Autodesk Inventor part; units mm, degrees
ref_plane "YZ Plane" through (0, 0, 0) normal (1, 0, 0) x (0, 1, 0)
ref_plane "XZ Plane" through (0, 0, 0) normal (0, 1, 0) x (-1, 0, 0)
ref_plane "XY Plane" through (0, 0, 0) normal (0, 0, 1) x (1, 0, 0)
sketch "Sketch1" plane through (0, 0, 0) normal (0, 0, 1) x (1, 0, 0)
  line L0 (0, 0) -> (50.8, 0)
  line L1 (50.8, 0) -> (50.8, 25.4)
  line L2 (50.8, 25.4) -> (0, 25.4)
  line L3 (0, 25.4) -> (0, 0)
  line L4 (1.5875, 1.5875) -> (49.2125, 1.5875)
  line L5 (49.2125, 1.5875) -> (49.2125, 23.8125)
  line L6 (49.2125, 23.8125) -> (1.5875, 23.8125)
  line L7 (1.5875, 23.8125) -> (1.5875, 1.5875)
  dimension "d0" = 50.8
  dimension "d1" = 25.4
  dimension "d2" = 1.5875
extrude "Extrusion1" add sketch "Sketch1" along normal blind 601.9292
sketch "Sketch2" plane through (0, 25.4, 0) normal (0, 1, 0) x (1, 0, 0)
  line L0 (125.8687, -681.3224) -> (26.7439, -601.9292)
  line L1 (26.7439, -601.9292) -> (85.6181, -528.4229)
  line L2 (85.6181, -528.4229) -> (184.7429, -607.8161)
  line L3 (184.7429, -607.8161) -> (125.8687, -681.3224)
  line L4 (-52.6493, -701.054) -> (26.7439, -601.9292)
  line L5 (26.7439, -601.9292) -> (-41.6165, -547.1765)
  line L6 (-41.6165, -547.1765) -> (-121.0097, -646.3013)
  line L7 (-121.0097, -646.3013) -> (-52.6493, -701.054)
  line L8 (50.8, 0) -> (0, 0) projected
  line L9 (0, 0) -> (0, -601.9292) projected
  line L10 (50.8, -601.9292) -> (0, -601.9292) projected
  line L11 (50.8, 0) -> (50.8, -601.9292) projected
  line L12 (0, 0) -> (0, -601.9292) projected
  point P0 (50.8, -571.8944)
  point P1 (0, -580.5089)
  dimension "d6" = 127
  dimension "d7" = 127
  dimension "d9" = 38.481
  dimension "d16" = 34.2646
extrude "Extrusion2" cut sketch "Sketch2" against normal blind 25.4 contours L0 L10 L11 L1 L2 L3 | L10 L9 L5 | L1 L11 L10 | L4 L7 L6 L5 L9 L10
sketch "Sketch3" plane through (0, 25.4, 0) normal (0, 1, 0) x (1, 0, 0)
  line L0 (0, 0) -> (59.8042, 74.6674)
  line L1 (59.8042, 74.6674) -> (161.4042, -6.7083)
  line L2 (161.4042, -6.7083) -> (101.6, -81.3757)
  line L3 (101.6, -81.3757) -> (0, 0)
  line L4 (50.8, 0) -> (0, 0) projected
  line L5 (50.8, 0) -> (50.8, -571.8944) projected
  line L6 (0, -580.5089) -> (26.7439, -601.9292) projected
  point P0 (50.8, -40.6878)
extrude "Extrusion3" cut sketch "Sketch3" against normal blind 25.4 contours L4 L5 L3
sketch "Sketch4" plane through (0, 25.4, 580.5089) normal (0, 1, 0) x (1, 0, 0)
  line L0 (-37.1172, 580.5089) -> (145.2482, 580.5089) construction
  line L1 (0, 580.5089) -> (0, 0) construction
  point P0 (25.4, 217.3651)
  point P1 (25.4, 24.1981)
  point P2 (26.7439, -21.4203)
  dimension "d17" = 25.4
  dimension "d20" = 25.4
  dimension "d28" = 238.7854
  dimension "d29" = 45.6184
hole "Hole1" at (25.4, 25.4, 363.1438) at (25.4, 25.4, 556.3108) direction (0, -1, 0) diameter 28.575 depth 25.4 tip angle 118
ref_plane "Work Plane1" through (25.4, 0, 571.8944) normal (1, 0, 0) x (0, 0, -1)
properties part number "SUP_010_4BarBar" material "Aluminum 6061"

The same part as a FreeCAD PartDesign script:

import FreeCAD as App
import Part
import Sketcher
Q = App.Units.Quantity


def add_polygon(sketch, points):
    """Adds a closed chain of lines whose ends are joined by coincident constraints."""
    first, n = sketch.GeometryCount, len(points)
    for a, b in zip(points, points[1:] + points[:1]):
        sketch.addGeometry(Part.LineSegment(App.Vector(*a, 0), App.Vector(*b, 0)), False)
    for i in range(n):
        sketch.addConstraint(Sketcher.Constraint("Coincident", first + i, 2, first + (i + 1) % n, 1))

doc = App.newDocument("Part")
params = doc.addObject("Spreadsheet::Sheet", "Params")
for row, (alias, value) in enumerate([
    ("sketch1_width", "2 in"),
    ("sketch1_height", "1 in"),
    ("pad1_length", "23.698 in"),
    ("sketch2_length", "5 in"),
    ("pocket1_length", "1 in"),
    ("sketch3_width", "2 in"),
    ("pocket2_length", "1 in"),
    ("sketch4_diameter", "1.125 in"),
    ("hole_diameter", "1.125 in"),
    ("hole_depth", "1 in"),
], start=1):
    params.set(f"A{row}", alias)
    params.set(f"B{row}", "=" + value)
    params.setAlias(f"B{row}", alias)

body = doc.addObject("PartDesign::Body", "Body")

sketch1 = body.newObject("Sketcher::SketchObject", "Sketch")
sketch1.AttachmentSupport = (doc.getObject("XY_Plane"), [""])
sketch1.MapMode = "FlatFace"
add_polygon(sketch1, [(0, 25.4), (0, 0), (50.8, 0), (50.8, 25.4)])
add_polygon(sketch1, [(49.2125, 1.5875), (1.5875, 1.5875), (1.5875, 23.8125), (49.2125, 23.8125)])
sketch1.addConstraint([
    Sketcher.Constraint("Vertical", 0),
    Sketcher.Constraint("Horizontal", 1),
    Sketcher.Constraint("Vertical", 2),
    Sketcher.Constraint("Horizontal", 3),
    Sketcher.Constraint("Horizontal", 4),
    Sketcher.Constraint("Vertical", 5),
    Sketcher.Constraint("Horizontal", 6),
    Sketcher.Constraint("Vertical", 7),
    Sketcher.Constraint("Coincident", 0, 2, -1, 1),
    Sketcher.Constraint("DistanceX", 1, 1, 1, 2, Q("2 in")),
    Sketcher.Constraint("DistanceY", 0, 2, 0, 1, Q("1 in")),
    Sketcher.Constraint("DistanceX", -1, 1, 4, 2, Q("0.0625 in")),
    Sketcher.Constraint("DistanceY", -1, 1, 4, 2, Q("0.0625 in")),
    Sketcher.Constraint("DistanceY", 5, 2, 3, 2, Q("0.0625 in")),
    Sketcher.Constraint("DistanceX", 6, 2, 2, 2, Q("0.0625 in")),
])
sketch1.setExpression("Constraints[17]", "Params.sketch1_width")
sketch1.setExpression("Constraints[18]", "Params.sketch1_height")
pad1 = body.newObject("PartDesign::Pad", "Pad")
pad1.Profile = sketch1
pad1.setExpression("Length", "Params.pad1_length")

sketch2 = body.newObject("Sketcher::SketchObject", "Sketch001")
sketch2.AttachmentSupport = (doc.getObject("XZ_Plane"), [""])
sketch2.MapMode = "FlatFace"
sketch2.AttachmentOffset = App.Placement(App.Vector(0, 0, -1 * 25.4), App.Rotation())
add_polygon(sketch2, [(26.7439, 601.9292), (125.8687, 681.3224), (184.7429, 607.8161), (85.6181, 528.4229)])
add_polygon(sketch2, [(26.7439, 601.9292), (-41.6165, 547.1765), (-121.0097, 646.3013), (-52.6493, 701.054)])
sketch2.addConstraint([
    Sketcher.Constraint("Coincident", 7, 2, 3, 2),
    Sketcher.Constraint("Perpendicular", 0, 1),
    Sketcher.Constraint("Perpendicular", 1, 2),
    Sketcher.Constraint("Perpendicular", 2, 3),
    Sketcher.Constraint("Perpendicular", 3, 4),
    Sketcher.Constraint("Perpendicular", 4, 5),
    Sketcher.Constraint("Perpendicular", 5, 6),
    Sketcher.Constraint("Perpendicular", 6, 7),
    Sketcher.Constraint("Equal", 2, 5),
    Sketcher.Constraint("Distance", 0, Q("5 in")),
    Sketcher.Constraint("DistanceY", -1, 1, 3, 2, Q("23.698 in")),
    Sketcher.Constraint("Distance", 4, Q("3.4482 in")),
    Sketcher.Constraint("DistanceX", -1, 1, 2, 2, Q("3.3708 in")),
    Sketcher.Constraint("DistanceX", -1, 1, 3, 2, Q("1.0529 in")),
    Sketcher.Constraint("DistanceX", 6, 2, -1, 1, Q("2.0728 in")),
])
sketch2.setExpression("Constraints[17]", "Params.sketch2_length")
pocket1 = body.newObject("PartDesign::Pocket", "Pocket")
pocket1.Profile = sketch2
pocket1.setExpression("Length", "Params.pocket1_length")
pocket1.Reversed = True

sketch3 = body.newObject("Sketcher::SketchObject", "Sketch002")
sketch3.AttachmentSupport = (doc.getObject("XZ_Plane"), [""])
sketch3.MapMode = "FlatFace"
sketch3.AttachmentOffset = App.Placement(App.Vector(0, 0, -1 * 25.4), App.Rotation())
add_polygon(sketch3, [(50.8, 0), (0, 0), (50.8, 40.68785)])
sketch3.addConstraint([
    Sketcher.Constraint("Horizontal", 0),
    Sketcher.Constraint("Vertical", 2),
    Sketcher.Constraint("Coincident", 0, 2, -1, 1),
    Sketcher.Constraint("DistanceX", 0, 2, 0, 1, Q("2 in")),
    Sketcher.Constraint("DistanceY", 2, 2, 2, 1, Q("40.6878 mm")),
])
sketch3.setExpression("Constraints[6]", "Params.sketch3_width")
pocket2 = body.newObject("PartDesign::Pocket", "Pocket001")
pocket2.Profile = sketch3
pocket2.setExpression("Length", "Params.pocket2_length")
pocket2.Reversed = True

sketch4 = body.newObject("Sketcher::SketchObject", "Sketch003")
sketch4.AttachmentSupport = (doc.getObject("XZ_Plane"), [""])
sketch4.MapMode = "FlatFace"
sketch4.AttachmentOffset = App.Placement(App.Vector(0, 0, -1 * 25.4), App.Rotation())
sketch4.addGeometry([
    Part.Circle(App.Vector(25.4, 363.1438, 0), App.Vector(0, 0, 1), 14.2875),
    Part.Circle(App.Vector(25.4, 556.3108, 0), App.Vector(0, 0, 1), 14.2875),
], False)
sketch4.addConstraint([
    Sketcher.Constraint("Equal", 0, 1),
    Sketcher.Constraint("Vertical", 0, 3, 1, 3),
    Sketcher.Constraint("Diameter", 0, Q("1.125 in")),
    Sketcher.Constraint("DistanceX", -1, 1, 0, 3, Q("1 in")),
    Sketcher.Constraint("DistanceY", -1, 1, 0, 3, Q("14.297 in")),
    Sketcher.Constraint("DistanceY", -1, 1, 1, 3, Q("21.902 in")),
])
sketch4.setExpression("Constraints[2]", "Params.sketch4_diameter")
doc.recompute()
hole = body.newObject("PartDesign::Hole", "Hole")
hole.Profile = sketch4
hole.ThreadType = "None"
hole.setExpression("Diameter", "Params.hole_diameter")
hole.DepthType = "Dimension"
hole.setExpression("Depth", "Params.hole_depth")
hole.DrillPoint = "Angled"
hole.DrillPointAngle = 118
hole.Reversed = True

doc.recompute()
